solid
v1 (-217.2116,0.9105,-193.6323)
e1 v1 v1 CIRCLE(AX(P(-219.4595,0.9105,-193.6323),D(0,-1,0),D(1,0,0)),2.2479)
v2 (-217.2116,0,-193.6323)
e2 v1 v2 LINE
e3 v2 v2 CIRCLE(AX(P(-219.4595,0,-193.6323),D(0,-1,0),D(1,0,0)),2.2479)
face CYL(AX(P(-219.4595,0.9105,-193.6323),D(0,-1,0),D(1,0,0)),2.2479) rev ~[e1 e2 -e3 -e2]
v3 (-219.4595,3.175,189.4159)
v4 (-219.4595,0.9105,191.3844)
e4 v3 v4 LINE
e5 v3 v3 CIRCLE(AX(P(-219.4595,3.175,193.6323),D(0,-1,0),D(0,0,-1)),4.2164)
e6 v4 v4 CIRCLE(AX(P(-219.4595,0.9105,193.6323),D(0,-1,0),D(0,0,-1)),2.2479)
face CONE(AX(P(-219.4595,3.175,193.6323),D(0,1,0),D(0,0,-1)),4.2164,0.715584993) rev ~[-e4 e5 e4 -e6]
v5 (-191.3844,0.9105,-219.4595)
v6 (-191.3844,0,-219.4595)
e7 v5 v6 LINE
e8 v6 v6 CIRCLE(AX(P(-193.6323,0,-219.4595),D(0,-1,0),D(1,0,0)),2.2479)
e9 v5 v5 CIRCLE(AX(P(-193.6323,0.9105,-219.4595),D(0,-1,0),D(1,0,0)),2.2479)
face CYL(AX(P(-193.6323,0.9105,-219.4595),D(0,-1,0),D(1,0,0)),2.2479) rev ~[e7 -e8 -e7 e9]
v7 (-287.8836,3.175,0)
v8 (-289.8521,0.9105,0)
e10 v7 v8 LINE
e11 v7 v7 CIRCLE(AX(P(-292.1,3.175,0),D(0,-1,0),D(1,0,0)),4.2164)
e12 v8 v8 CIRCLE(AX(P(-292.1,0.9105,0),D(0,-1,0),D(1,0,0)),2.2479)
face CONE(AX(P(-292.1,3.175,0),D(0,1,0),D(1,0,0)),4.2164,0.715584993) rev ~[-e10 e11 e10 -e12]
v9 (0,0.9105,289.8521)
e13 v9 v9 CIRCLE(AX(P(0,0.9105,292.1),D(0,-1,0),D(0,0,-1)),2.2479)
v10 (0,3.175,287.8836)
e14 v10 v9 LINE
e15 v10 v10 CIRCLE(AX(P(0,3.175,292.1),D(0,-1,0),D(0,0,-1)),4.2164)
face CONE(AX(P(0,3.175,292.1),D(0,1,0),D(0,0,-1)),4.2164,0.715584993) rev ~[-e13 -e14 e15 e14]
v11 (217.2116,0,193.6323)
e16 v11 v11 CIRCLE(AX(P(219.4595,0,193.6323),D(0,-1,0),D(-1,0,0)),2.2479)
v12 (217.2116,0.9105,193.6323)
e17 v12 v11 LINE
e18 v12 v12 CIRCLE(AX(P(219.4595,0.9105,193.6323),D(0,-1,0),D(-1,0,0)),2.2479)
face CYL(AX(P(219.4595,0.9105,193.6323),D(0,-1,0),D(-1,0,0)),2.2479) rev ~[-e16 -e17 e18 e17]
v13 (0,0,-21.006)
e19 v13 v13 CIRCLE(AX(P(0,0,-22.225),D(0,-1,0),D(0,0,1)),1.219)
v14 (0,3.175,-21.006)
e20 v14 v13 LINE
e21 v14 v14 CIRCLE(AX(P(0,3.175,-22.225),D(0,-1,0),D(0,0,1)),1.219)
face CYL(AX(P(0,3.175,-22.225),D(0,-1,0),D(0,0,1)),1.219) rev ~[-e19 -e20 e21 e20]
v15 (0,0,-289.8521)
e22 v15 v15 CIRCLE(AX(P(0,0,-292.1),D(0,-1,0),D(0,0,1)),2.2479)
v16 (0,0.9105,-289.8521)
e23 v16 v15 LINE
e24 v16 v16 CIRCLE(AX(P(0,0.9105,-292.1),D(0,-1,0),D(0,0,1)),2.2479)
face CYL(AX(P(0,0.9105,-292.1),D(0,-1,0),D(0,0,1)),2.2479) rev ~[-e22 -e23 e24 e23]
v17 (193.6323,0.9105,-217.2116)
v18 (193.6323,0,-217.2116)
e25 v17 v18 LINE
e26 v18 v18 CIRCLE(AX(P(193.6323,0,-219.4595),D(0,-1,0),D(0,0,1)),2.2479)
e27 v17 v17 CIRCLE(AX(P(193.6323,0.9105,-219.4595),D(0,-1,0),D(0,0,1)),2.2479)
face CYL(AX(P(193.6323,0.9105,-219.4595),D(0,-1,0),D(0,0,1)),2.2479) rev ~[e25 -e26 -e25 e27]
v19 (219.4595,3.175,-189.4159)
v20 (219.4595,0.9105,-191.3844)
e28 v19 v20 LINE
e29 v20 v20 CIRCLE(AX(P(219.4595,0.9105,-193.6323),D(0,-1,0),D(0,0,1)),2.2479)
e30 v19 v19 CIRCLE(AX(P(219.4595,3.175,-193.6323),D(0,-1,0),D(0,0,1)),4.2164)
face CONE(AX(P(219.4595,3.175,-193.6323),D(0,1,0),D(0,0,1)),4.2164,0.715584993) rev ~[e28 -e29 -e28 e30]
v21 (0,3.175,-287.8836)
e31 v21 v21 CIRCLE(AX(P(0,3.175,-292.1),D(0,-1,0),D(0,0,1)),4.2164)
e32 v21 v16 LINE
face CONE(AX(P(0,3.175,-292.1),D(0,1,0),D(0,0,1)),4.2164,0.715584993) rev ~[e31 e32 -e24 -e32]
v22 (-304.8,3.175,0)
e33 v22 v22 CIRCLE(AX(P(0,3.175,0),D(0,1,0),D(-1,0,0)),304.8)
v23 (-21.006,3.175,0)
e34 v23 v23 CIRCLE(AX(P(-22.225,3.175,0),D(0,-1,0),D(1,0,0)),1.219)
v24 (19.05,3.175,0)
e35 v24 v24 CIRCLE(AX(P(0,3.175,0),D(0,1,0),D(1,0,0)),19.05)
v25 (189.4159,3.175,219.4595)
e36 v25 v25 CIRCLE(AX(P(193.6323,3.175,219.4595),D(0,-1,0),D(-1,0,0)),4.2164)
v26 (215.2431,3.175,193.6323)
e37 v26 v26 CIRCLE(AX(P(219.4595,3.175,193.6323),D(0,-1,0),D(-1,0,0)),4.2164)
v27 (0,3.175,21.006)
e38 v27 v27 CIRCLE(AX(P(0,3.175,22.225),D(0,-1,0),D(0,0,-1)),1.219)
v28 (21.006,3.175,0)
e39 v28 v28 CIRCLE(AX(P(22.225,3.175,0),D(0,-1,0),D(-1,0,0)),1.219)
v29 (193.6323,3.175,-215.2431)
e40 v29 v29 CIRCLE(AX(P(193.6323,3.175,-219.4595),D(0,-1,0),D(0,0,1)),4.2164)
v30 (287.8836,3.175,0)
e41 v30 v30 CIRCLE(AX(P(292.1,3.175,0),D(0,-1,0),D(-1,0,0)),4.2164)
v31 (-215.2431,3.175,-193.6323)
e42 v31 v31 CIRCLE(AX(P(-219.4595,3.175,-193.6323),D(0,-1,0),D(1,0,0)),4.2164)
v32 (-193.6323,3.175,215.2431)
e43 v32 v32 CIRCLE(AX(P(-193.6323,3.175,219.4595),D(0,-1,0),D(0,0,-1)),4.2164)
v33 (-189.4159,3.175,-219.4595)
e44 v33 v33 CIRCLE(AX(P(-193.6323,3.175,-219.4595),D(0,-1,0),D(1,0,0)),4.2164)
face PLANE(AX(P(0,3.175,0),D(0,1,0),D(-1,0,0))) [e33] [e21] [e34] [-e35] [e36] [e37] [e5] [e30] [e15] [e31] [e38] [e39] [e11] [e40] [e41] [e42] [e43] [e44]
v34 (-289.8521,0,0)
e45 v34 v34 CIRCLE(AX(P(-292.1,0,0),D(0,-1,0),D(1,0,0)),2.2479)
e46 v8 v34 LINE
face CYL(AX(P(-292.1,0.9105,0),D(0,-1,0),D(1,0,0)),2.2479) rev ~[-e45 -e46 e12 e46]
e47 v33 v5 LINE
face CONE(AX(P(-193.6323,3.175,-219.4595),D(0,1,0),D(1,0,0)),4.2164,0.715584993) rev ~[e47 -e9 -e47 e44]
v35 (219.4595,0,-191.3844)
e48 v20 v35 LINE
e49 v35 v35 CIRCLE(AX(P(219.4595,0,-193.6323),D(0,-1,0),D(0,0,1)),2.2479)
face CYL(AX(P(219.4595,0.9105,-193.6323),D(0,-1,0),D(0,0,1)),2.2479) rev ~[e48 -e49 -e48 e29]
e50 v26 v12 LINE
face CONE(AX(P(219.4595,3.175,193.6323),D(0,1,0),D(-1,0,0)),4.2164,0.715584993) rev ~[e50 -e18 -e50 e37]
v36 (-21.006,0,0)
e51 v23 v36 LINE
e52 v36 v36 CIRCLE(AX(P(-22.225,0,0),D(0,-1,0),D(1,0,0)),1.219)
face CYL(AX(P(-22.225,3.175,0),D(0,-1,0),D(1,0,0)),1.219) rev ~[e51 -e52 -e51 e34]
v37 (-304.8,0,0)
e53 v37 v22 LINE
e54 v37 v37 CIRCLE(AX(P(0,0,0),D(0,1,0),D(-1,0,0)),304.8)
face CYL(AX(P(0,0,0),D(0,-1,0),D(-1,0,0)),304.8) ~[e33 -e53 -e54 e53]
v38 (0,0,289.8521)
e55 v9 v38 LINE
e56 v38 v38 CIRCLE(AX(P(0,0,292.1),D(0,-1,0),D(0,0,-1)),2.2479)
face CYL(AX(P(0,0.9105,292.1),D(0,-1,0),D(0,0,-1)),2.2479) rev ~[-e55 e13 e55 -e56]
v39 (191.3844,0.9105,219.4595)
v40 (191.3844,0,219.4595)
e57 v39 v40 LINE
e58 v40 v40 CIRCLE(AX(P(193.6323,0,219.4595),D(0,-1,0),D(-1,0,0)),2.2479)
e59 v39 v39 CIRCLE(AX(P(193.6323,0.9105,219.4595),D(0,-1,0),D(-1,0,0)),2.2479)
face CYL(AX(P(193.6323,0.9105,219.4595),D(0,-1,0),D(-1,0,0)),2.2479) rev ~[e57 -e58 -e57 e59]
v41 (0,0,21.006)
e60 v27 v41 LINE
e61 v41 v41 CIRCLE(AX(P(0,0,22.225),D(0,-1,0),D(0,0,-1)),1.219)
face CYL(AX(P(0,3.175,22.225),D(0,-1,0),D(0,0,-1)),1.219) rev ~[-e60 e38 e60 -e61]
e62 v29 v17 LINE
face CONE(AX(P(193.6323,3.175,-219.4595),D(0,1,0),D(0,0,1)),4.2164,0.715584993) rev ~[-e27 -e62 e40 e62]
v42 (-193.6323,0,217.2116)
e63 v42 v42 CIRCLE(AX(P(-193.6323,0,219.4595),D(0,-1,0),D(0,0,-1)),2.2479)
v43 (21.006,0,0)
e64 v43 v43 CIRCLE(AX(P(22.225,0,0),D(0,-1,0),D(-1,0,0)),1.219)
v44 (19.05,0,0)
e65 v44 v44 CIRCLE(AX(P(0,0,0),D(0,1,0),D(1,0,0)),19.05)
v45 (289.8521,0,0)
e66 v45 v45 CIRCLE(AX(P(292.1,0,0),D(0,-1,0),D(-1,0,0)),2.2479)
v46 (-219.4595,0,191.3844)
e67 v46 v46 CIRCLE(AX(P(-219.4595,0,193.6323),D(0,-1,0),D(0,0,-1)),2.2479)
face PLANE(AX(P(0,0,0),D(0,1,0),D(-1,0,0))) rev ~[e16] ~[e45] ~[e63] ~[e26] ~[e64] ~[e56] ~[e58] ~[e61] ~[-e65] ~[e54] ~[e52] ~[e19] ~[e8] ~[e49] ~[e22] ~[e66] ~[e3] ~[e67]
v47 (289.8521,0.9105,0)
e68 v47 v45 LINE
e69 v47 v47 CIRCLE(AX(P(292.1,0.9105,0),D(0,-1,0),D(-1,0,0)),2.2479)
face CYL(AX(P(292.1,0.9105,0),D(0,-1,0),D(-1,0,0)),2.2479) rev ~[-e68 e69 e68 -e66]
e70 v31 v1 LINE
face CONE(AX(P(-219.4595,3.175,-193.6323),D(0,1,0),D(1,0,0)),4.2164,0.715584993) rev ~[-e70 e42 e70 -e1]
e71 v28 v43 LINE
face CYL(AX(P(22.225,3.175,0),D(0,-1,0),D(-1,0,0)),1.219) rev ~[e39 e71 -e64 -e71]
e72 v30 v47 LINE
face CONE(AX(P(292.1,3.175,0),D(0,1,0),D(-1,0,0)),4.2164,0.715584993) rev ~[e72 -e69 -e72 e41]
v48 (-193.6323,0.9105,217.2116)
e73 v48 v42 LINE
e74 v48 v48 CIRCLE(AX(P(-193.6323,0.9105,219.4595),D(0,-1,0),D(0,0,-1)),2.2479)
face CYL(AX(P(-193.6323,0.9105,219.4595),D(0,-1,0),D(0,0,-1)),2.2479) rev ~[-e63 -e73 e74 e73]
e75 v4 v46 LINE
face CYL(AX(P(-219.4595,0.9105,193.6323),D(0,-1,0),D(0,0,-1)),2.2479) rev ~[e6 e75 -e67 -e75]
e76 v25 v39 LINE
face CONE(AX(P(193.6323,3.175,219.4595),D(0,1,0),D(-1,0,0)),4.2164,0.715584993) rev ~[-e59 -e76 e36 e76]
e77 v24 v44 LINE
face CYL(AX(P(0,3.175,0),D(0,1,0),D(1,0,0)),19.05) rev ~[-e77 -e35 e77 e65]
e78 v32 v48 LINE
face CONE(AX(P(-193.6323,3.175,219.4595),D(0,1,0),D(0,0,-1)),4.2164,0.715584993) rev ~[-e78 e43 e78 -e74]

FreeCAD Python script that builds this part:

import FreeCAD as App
import Part
import Sketcher

V = App.Vector
Q = App.Units.Quantity

doc = App.newDocument("Part")
body = doc.addObject("PartDesign::Body", "Body")

sketch1 = body.newObject("Sketcher::SketchObject", "Sketch")
sketch1.AttachmentSupport = (doc.getObject("XZ_Plane"), [""])
sketch1.MapMode = "FlatFace"
sketch1.addGeometry(Part.Circle(V(0, 0, 0), V(0, 0, 1), 304.8), False)
sketch1.addConstraint([
    Sketcher.Constraint("Coincident", 0, 3, -1, 1),
    Sketcher.Constraint("Diameter", 0, Q("24 in")),
])
pad1 = body.newObject("PartDesign::Pad", "Pad")
pad1.Profile = sketch1
pad1.Length = Q("0.125 in")
pad1.Reversed = True

sketch2 = body.newObject("Sketcher::SketchObject", "Sketch001")
sketch2.AttachmentSupport = (doc.getObject("XZ_Plane"), [""])
sketch2.MapMode = "FlatFace"
sketch2.AttachmentOffset = App.Placement(V(0, 0, -0.125 * 25.4), App.Rotation())
sketch2.addGeometry(Part.Circle(V(0, 0, 0), V(0, 0, 1), 19.05), False)
sketch2.addConstraint([
    Sketcher.Constraint("Coincident", 0, 3, -1, 1),
    Sketcher.Constraint("Diameter", 0, Q("1.5 in")),
])
pocket1 = body.newObject("PartDesign::Pocket", "Pocket")
pocket1.Profile = sketch2
pocket1.Length = Q("0.125 in")
pocket1.Reversed = True

sketch3 = body.newObject("Sketcher::SketchObject", "Sketch002")
sketch3.AttachmentSupport = (doc.getObject("XZ_Plane"), [""])
sketch3.MapMode = "FlatFace"
sketch3.AttachmentOffset = App.Placement(V(0, 0, -0.125 * 25.4), App.Rotation())
sketch3.addGeometry(Part.Circle(V(0, -292.1, 0), V(0, 0, 1), 2.2479), False)
sketch3.addConstraint([
    Sketcher.Constraint("PointOnObject", 0, 3, -2),
    Sketcher.Constraint("Diameter", 0, Q("0.177 in")),
    Sketcher.Constraint("DistanceY", 0, 3, -1, 1, Q("11.5 in")),
])
doc.recompute()
hole = body.newObject("PartDesign::Hole", "Hole")
hole.Profile = sketch3
hole.ThreadType = "None"
hole.Diameter = Q("0.177 in")
hole.DepthType = "ThroughAll"
hole.HoleCutType = "Countersink"
hole.HoleCutDiameter = Q("0.332 in")
hole.HoleCutCountersinkAngle = 82
hole.Reversed = True
doc.recompute()

polarpattern = body.newObject("PartDesign::PolarPattern", "PolarPattern")
polarpattern.Originals = [hole]
polarpattern.Axis = (doc.getObject("Y_Axis"), [""])
polarpattern.Angle = 360
polarpattern.Occurrences = 4
body.Tip = polarpattern

sketch4 = body.newObject("Sketcher::SketchObject", "Sketch003")
sketch4.AttachmentSupport = (doc.getObject("XZ_Plane"), [""])
sketch4.MapMode = "FlatFace"
sketch4.AttachmentOffset = App.Placement(V(0, 0, -0.125 * 25.4), App.Rotation())
sketch4.addGeometry([
    Part.Circle(V(193.6323, -219.4595, 0), V(0, 0, 1), 2.2479),
    Part.Circle(V(219.4595, -193.6323, 0), V(0, 0, 1), 2.2479),
], False)
sketch4.addConstraint([
    Sketcher.Constraint("Equal", 0, 1),
    Sketcher.Constraint("Diameter", 0, Q("0.177 in")),
    Sketcher.Constraint("DistanceX", -1, 1, 0, 3, 193.6323),
    Sketcher.Constraint("DistanceY", 0, 3, -1, 1, 219.4595),
    Sketcher.Constraint("DistanceX", -1, 1, 1, 3, 219.4595),
    Sketcher.Constraint("DistanceY", 1, 3, -1, 1, 193.6323),
])
doc.recompute()
hole2 = body.newObject("PartDesign::Hole", "Hole001")
hole2.Profile = sketch4
hole2.ThreadType = "None"
hole2.Diameter = Q("0.177 in")
hole2.DepthType = "ThroughAll"
hole2.HoleCutType = "Countersink"
hole2.HoleCutDiameter = Q("0.332 in")
hole2.HoleCutCountersinkAngle = 82
hole2.Reversed = True
doc.recompute()

polarpattern2 = body.newObject("PartDesign::PolarPattern", "PolarPattern001")
polarpattern2.Originals = [hole2]
polarpattern2.Axis = (doc.getObject("Y_Axis"), [""])
polarpattern2.Angle = 360
polarpattern2.Occurrences = 4
body.Tip = polarpattern2

sketch5 = body.newObject("Sketcher::SketchObject", "Sketch004")
sketch5.AttachmentSupport = (doc.getObject("XZ_Plane"), [""])
sketch5.MapMode = "FlatFace"
sketch5.AttachmentOffset = App.Placement(V(0, 0, -0.125 * 25.4), App.Rotation())
sketch5.addGeometry(Part.Circle(V(0, -22.225, 0), V(0, 0, 1), 1.219), False)
sketch5.addConstraint([
    Sketcher.Constraint("PointOnObject", 0, 3, -2),
    Sketcher.Constraint("Diameter", 0, 2.438),
    Sketcher.Constraint("DistanceY", 0, 3, -1, 1, Q("0.875 in")),
])
doc.recompute()
hole3 = body.newObject("PartDesign::Hole", "Hole002")
hole3.Profile = sketch5
hole3.ThreadType = "None"
hole3.Diameter = 2.438
hole3.DepthType = "Dimension"
hole3.Depth = 8
hole3.DrillPoint = "Angled"
hole3.DrillPointAngle = 118
hole3.Reversed = True
doc.recompute()

polarpattern3 = body.newObject("PartDesign::PolarPattern", "PolarPattern002")
polarpattern3.Originals = [hole3]
polarpattern3.Axis = (doc.getObject("Y_Axis"), [""])
polarpattern3.Angle = 360
polarpattern3.Occurrences = 4
body.Tip = polarpattern3

doc.recompute()
